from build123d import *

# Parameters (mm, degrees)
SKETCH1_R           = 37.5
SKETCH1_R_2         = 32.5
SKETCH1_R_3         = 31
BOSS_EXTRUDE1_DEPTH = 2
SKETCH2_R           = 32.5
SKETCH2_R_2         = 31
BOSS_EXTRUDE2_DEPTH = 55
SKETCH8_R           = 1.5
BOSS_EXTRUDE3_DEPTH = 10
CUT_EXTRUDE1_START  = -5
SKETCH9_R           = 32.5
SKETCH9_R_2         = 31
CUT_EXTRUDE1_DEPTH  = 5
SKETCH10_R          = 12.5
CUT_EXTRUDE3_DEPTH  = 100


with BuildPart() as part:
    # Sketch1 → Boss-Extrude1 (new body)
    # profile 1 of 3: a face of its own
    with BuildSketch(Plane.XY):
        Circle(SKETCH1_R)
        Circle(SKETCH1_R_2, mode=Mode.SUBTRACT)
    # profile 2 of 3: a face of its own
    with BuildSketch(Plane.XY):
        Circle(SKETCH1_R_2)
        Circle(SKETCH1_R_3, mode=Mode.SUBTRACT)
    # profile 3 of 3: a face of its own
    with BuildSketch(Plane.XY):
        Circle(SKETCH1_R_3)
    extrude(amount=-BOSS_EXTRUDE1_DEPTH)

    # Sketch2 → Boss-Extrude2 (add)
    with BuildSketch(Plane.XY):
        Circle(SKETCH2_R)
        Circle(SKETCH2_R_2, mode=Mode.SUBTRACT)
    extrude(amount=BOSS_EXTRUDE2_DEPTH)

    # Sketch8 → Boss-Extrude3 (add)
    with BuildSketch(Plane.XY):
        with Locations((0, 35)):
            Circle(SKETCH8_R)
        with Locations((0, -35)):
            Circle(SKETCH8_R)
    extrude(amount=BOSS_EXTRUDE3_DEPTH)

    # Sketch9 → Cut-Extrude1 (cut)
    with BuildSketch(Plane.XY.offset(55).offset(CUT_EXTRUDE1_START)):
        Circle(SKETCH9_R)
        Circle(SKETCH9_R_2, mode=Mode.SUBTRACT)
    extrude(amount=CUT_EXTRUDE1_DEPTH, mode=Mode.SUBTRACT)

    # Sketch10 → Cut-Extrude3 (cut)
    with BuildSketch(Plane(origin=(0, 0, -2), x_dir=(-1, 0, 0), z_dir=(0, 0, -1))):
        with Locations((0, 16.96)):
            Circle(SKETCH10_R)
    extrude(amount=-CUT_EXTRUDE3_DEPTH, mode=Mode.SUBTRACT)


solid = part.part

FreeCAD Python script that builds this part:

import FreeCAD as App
import Part
import Sketcher
from FreeCAD import Vector

doc = App.newDocument("Part")
body = doc.addObject("PartDesign::Body", "Body")

# Sketch on XY plane
sketch1 = body.newObject("Sketcher::SketchObject", "Sketch")
sketch1.AttachmentSupport = (doc.getObject("XY_Plane"), [""])
sketch1.MapMode = "FlatFace"
sketch1.addGeometry(Part.Circle(Vector(0, 0, 0), Vector(0, 0, 1), 37.5), False)
sketch1.addConstraint([
    Sketcher.Constraint("Coincident", 0, 3, -1, 1),
    Sketcher.Constraint("Diameter", 0, 75.0),
])
pad1 = body.newObject("PartDesign::Pad", "Pad")
pad1.Profile = sketch1
pad1.Length = 2
pad1.Reversed = True

# Sketch on XY plane
sketch2 = body.newObject("Sketcher::SketchObject", "Sketch001")
sketch2.AttachmentSupport = (doc.getObject("XY_Plane"), [""])
sketch2.MapMode = "FlatFace"
sketch2.addGeometry([
    Part.Circle(Vector(0, 0, 0), Vector(0, 0, 1), 32.5),
    Part.Circle(Vector(0, 0, 0), Vector(0, 0, 1), 31),
], False)
sketch2.addConstraint([
    Sketcher.Constraint("Coincident", 0, 3, -1, 1),
    Sketcher.Constraint("Coincident", 1, 3, -1, 1),
    Sketcher.Constraint("Diameter", 0, 65.0),
    Sketcher.Constraint("Diameter", 1, 62.0),
])
pad2 = body.newObject("PartDesign::Pad", "Pad001")
pad2.Profile = sketch2
pad2.Length = 55

# Sketch on XY plane
sketch3 = body.newObject("Sketcher::SketchObject", "Sketch002")
sketch3.AttachmentSupport = (doc.getObject("XY_Plane"), [""])
sketch3.MapMode = "FlatFace"
sketch3.addGeometry([
    Part.Circle(Vector(0, 35, 0), Vector(0, 0, 1), 1.5),
    Part.Circle(Vector(0, -35, 0), Vector(0, 0, 1), 1.5),
], False)
sketch3.addConstraint([
    Sketcher.Constraint("Equal", 0, 1),
    Sketcher.Constraint("Symmetric", 0, 3, 1, 3, -1, 1),
    Sketcher.Constraint("PointOnObject", 0, 3, -2),
    Sketcher.Constraint("Diameter", 0, 3.0),
    Sketcher.Constraint("DistanceY", -1, 1, 0, 3, 35.0),
])
pad3 = body.newObject("PartDesign::Pad", "Pad002")
pad3.Profile = sketch3
pad3.Length = 10

# Sketch on XY plane
sketch4 = body.newObject("Sketcher::SketchObject", "Sketch003")
sketch4.AttachmentSupport = (doc.getObject("XY_Plane"), [""])
sketch4.MapMode = "FlatFace"
sketch4.AttachmentOffset = App.Placement(Vector(0, 0, 50), App.Rotation())
sketch4.addGeometry([
    Part.Circle(Vector(0, 0, 0), Vector(0, 0, 1), 32.5),
    Part.Circle(Vector(0, 0, 0), Vector(0, 0, 1), 31),
], False)
sketch4.addConstraint([
    Sketcher.Constraint("Coincident", 0, 3, -1, 1),
    Sketcher.Constraint("Coincident", 1, 3, -1, 1),
    Sketcher.Constraint("Diameter", 0, 65.0),
    Sketcher.Constraint("Diameter", 1, 62.0),
])
pocket1 = body.newObject("PartDesign::Pocket", "Pocket")
pocket1.Profile = sketch4
pocket1.Length = 5
pocket1.Reversed = True

# Sketch on XY plane
sketch5 = body.newObject("Sketcher::SketchObject", "Sketch004")
sketch5.AttachmentSupport = (doc.getObject("XY_Plane"), [""])
sketch5.MapMode = "FlatFace"
sketch5.AttachmentOffset = App.Placement(Vector(0, 0, -2), App.Rotation())
sketch5.addGeometry(Part.Circle(Vector(0, 16.96, 0), Vector(0, 0, 1), 12.5), False)
sketch5.addConstraint([
    Sketcher.Constraint("PointOnObject", 0, 3, -2),
    Sketcher.Constraint("Diameter", 0, 25.0),
    Sketcher.Constraint("DistanceY", -1, 1, 0, 3, 16.96),
])
pocket2 = body.newObject("PartDesign::Pocket", "Pocket001")
pocket2.Profile = sketch5
pocket2.Length = 100
pocket2.Reversed = True

doc.recompute()
